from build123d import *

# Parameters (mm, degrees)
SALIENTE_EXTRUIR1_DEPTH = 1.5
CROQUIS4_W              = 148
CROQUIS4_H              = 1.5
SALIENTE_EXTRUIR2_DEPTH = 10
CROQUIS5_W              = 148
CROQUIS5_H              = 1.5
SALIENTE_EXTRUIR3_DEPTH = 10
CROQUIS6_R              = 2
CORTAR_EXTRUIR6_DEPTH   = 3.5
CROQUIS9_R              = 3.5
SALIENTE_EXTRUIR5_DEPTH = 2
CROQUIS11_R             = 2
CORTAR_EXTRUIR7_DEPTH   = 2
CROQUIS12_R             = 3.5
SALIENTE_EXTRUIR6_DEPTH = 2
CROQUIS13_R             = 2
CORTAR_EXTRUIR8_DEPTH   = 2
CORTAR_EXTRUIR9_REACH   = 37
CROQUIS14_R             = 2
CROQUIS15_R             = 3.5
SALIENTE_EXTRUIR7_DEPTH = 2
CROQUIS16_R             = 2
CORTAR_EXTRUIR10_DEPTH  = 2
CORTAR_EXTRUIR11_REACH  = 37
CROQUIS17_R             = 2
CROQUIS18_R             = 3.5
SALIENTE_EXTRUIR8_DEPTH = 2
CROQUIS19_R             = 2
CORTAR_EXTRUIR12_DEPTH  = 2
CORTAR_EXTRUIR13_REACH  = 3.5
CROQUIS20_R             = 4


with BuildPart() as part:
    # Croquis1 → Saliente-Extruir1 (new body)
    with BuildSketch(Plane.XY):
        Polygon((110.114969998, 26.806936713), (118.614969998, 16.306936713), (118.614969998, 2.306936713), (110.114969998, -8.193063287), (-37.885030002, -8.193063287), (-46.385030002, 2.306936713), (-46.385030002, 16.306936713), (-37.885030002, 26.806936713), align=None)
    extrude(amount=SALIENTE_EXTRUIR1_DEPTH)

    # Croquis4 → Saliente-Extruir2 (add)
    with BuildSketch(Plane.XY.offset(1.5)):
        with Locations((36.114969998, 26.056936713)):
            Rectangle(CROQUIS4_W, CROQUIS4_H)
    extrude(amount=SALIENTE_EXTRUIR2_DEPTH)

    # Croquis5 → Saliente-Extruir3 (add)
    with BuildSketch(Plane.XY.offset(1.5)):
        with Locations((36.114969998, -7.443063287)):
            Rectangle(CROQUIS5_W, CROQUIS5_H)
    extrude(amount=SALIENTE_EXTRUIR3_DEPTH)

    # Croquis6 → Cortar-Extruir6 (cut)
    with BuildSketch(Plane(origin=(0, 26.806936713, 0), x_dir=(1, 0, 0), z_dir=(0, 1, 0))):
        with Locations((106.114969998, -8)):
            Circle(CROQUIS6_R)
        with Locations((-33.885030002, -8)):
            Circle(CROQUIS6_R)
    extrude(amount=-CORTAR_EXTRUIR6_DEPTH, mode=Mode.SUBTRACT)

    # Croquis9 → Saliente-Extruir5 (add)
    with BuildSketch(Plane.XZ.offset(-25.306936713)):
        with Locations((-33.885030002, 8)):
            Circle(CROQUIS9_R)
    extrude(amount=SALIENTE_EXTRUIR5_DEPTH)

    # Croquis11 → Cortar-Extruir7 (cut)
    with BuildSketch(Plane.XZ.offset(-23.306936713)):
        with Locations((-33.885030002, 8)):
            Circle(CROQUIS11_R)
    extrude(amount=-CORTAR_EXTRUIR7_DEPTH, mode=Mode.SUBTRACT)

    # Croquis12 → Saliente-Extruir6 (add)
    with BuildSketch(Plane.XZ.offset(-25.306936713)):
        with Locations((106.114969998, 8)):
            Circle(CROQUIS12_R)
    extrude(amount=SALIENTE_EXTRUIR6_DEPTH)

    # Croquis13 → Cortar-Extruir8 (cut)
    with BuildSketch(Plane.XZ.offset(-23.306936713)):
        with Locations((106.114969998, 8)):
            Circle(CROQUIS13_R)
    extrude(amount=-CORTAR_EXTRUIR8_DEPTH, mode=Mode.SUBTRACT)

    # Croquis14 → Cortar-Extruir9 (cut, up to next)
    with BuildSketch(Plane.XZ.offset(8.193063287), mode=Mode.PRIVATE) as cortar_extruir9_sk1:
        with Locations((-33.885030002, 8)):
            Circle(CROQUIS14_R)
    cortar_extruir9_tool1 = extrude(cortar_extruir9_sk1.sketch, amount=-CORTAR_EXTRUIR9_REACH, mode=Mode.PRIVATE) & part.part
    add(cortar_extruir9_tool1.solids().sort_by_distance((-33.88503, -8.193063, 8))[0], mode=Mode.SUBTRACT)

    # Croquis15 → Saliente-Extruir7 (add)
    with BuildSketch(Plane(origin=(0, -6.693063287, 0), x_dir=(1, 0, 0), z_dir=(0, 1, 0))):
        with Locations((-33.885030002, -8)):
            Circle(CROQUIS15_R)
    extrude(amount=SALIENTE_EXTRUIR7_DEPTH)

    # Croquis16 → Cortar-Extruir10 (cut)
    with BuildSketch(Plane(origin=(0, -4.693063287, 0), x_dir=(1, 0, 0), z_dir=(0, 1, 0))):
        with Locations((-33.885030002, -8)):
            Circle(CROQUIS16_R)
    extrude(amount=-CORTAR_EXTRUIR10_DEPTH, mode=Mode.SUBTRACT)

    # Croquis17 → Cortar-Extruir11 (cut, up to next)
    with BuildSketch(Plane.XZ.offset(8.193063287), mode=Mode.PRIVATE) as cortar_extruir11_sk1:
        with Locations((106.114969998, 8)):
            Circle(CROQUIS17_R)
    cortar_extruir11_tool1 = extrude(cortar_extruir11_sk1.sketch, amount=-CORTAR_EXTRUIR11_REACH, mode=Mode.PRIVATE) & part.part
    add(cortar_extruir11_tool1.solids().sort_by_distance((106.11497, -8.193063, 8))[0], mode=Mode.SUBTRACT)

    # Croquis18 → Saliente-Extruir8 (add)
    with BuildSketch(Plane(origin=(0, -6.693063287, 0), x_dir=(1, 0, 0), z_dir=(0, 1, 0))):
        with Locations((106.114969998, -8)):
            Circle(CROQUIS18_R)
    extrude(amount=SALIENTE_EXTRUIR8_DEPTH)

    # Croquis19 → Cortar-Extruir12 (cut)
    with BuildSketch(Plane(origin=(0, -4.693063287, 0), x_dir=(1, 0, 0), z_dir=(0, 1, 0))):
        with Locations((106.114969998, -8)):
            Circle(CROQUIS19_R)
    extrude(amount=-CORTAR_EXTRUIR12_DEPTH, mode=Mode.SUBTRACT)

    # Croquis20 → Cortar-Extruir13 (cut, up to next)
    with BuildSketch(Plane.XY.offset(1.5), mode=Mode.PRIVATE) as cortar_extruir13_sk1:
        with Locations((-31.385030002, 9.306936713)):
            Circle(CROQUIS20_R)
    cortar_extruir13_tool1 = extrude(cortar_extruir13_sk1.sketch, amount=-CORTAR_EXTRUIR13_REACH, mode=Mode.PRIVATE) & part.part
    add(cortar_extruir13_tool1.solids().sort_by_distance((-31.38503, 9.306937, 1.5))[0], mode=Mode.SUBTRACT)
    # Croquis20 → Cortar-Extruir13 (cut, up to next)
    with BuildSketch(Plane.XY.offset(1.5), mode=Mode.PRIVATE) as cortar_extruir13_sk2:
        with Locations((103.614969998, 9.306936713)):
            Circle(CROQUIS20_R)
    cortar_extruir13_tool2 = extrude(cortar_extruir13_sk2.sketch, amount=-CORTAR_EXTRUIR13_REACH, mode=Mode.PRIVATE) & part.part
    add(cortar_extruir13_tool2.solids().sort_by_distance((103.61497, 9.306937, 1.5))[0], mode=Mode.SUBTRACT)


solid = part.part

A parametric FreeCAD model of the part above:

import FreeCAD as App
import Part
import Sketcher

doc = App.newDocument("Part")
body = doc.addObject("PartDesign::Body", "Body")

sketch1 = doc.addObject("Sketcher::SketchObject", "Sketch")
body.addObject(sketch1)
sketch1.AttachmentSupport = (doc.XY_Plane, [""])
sketch1.MapMode = "FlatFace"
sketch1.addGeometry(Part.LineSegment(App.Vector(119, 16, 0), App.Vector(110, 27, 0)), False)
sketch1.addGeometry(Part.LineSegment(App.Vector(110, 27, 0), App.Vector(-38, 27, 0)), False)
sketch1.addGeometry(Part.LineSegment(App.Vector(-38, 27, 0), App.Vector(-46, 16, 0)), False)
sketch1.addGeometry(Part.LineSegment(App.Vector(-46, 16, 0), App.Vector(-46, 2, 0)), False)
sketch1.addGeometry(Part.LineSegment(App.Vector(-46, 2, 0), App.Vector(-38, -8, 0)), False)
sketch1.addGeometry(Part.LineSegment(App.Vector(-38, -8, 0), App.Vector(110, -8, 0)), False)
sketch1.addGeometry(Part.LineSegment(App.Vector(110, -8, 0), App.Vector(119, 2, 0)), False)
sketch1.addGeometry(Part.LineSegment(App.Vector(119, 2, 0), App.Vector(119, 16, 0)), False)
sketch1.addConstraint(Sketcher.Constraint("Coincident", 0, 2, 1, 1))
sketch1.addConstraint(Sketcher.Constraint("Coincident", 1, 2, 2, 1))
sketch1.addConstraint(Sketcher.Constraint("Coincident", 2, 2, 3, 1))
sketch1.addConstraint(Sketcher.Constraint("Coincident", 3, 2, 4, 1))
sketch1.addConstraint(Sketcher.Constraint("Coincident", 4, 2, 5, 1))
sketch1.addConstraint(Sketcher.Constraint("Coincident", 5, 2, 6, 1))
sketch1.addConstraint(Sketcher.Constraint("Coincident", 6, 2, 7, 1))
sketch1.addConstraint(Sketcher.Constraint("Coincident", 7, 2, 0, 1))
sketch1.addConstraint(Sketcher.Constraint("Horizontal", 1))
sketch1.addConstraint(Sketcher.Constraint("Vertical", 3))
sketch1.addConstraint(Sketcher.Constraint("Horizontal", 5))
sketch1.addConstraint(Sketcher.Constraint("Vertical", 7))
sketch1.addConstraint(Sketcher.Constraint("Parallel", 0, 4))
sketch1.addConstraint(Sketcher.Constraint("Parallel", 2, 6))
sketch1.addConstraint(Sketcher.Constraint("Horizontal", 3, 2, 6, 2))
sketch1.addConstraint(Sketcher.Constraint("Horizontal", 2, 2, 7, 2))
sketch1.addConstraint(Sketcher.Constraint("Vertical", 1, 2, 4, 2))
sketch1.addConstraint(Sketcher.Constraint("Vertical", 0, 2, 5, 2))
sketch1.addConstraint(Sketcher.Constraint("DistanceX", 1, 2, 1, 1, 148.0))
sketch1.addConstraint(Sketcher.Constraint("DistanceY", 3, 2, 3, 1, 14.0))
sketch1.addConstraint(Sketcher.Constraint("DistanceY", 4, 2, 1, 2, 35.0))
sketch1.addConstraint(Sketcher.Constraint("DistanceX", 3, 2, 6, 2, 165.0))
sketch1.addConstraint(Sketcher.Constraint("DistanceX", -1, 1, 0, 2, 110.11497))
sketch1.addConstraint(Sketcher.Constraint("DistanceY", -1, 1, 0, 2, 26.806937))
pad1 = doc.addObject("PartDesign::Pad", "Pad")
body.addObject(pad1)
pad1.Profile = sketch1
pad1.Length = 1.5

sketch2 = doc.addObject("Sketcher::SketchObject", "Sketch001")
body.addObject(sketch2)
sketch2.AttachmentSupport = (doc.XY_Plane, [""])
sketch2.MapMode = "FlatFace"
sketch2.AttachmentOffset = App.Placement(App.Vector(0, 0, 1.5), App.Rotation())
sketch2.addGeometry(Part.LineSegment(App.Vector(-37.9, 26.8, 0), App.Vector(-37.9, 25.3, 0)), False)
sketch2.addGeometry(Part.LineSegment(App.Vector(-37.9, 25.3, 0), App.Vector(110.1, 25.3, 0)), False)
sketch2.addGeometry(Part.LineSegment(App.Vector(110.1, 25.3, 0), App.Vector(110.1, 26.8, 0)), False)
sketch2.addGeometry(Part.LineSegment(App.Vector(110.1, 26.8, 0), App.Vector(-37.9, 26.8, 0)), False)
sketch2.addConstraint(Sketcher.Constraint("Coincident", 0, 2, 1, 1))
sketch2.addConstraint(Sketcher.Constraint("Coincident", 1, 2, 2, 1))
sketch2.addConstraint(Sketcher.Constraint("Coincident", 2, 2, 3, 1))
sketch2.addConstraint(Sketcher.Constraint("Coincident", 3, 2, 0, 1))
sketch2.addConstraint(Sketcher.Constraint("Vertical", 0))
sketch2.addConstraint(Sketcher.Constraint("Horizontal", 1))
sketch2.addConstraint(Sketcher.Constraint("Vertical", 2))
sketch2.addConstraint(Sketcher.Constraint("Horizontal", 3))
sketch2.addConstraint(Sketcher.Constraint("DistanceX", 1, 1, 1, 2, 148.0))
sketch2.addConstraint(Sketcher.Constraint("DistanceY", 0, 2, 0, 1, 1.5))
sketch2.addConstraint(Sketcher.Constraint("DistanceX", 0, 2, -1, 1, 37.88503))
sketch2.addConstraint(Sketcher.Constraint("DistanceY", -1, 1, 0, 2, 25.306937))
pad2 = doc.addObject("PartDesign::Pad", "Pad001")
body.addObject(pad2)
pad2.Profile = sketch2
pad2.Length = 10

sketch3 = doc.addObject("Sketcher::SketchObject", "Sketch002")
body.addObject(sketch3)
sketch3.AttachmentSupport = (doc.XY_Plane, [""])
sketch3.MapMode = "FlatFace"
sketch3.AttachmentOffset = App.Placement(App.Vector(0, 0, 1.5), App.Rotation())
sketch3.addGeometry(Part.LineSegment(App.Vector(-37.9, -6.7, 0), App.Vector(-37.9, -8.2, 0)), False)
sketch3.addGeometry(Part.LineSegment(App.Vector(-37.9, -8.2, 0), App.Vector(110.1, -8.2, 0)), False)
sketch3.addGeometry(Part.LineSegment(App.Vector(110.1, -8.2, 0), App.Vector(110.1, -6.7, 0)), False)
sketch3.addGeometry(Part.LineSegment(App.Vector(110.1, -6.7, 0), App.Vector(-37.9, -6.7, 0)), False)
sketch3.addConstraint(Sketcher.Constraint("Coincident", 0, 2, 1, 1))
sketch3.addConstraint(Sketcher.Constraint("Coincident", 1, 2, 2, 1))
sketch3.addConstraint(Sketcher.Constraint("Coincident", 2, 2, 3, 1))
sketch3.addConstraint(Sketcher.Constraint("Coincident", 3, 2, 0, 1))
sketch3.addConstraint(Sketcher.Constraint("Vertical", 0))
sketch3.addConstraint(Sketcher.Constraint("Horizontal", 1))
sketch3.addConstraint(Sketcher.Constraint("Vertical", 2))
sketch3.addConstraint(Sketcher.Constraint("Horizontal", 3))
sketch3.addConstraint(Sketcher.Constraint("DistanceX", 1, 1, 1, 2, 148.0))
sketch3.addConstraint(Sketcher.Constraint("DistanceY", 0, 2, 0, 1, 1.5))
sketch3.addConstraint(Sketcher.Constraint("DistanceX", 0, 2, -1, 1, 37.88503))
sketch3.addConstraint(Sketcher.Constraint("DistanceY", 0, 2, -1, 1, 8.193063))
pad3 = doc.addObject("PartDesign::Pad", "Pad002")
body.addObject(pad3)
pad3.Profile = sketch3
pad3.Length = 10

sketch4 = doc.addObject("Sketcher::SketchObject", "Sketch003")
body.addObject(sketch4)
sketch4.AttachmentSupport = (doc.XZ_Plane, [""])
sketch4.MapMode = "FlatFace"
sketch4.AttachmentOffset = App.Placement(App.Vector(0, 0, -26.806937), App.Rotation())
sketch4.addGeometry(Part.Circle(App.Vector(106.1, 8, 0), App.Vector(0, 0, 1), 2), False)
sketch4.addGeometry(Part.Circle(App.Vector(-33.9, 8, 0), App.Vector(0, 0, 1), 2), False)
sketch4.addConstraint(Sketcher.Constraint("Equal", 0, 1))
sketch4.addConstraint(Sketcher.Constraint("Horizontal", 0, 3, 1, 3))
sketch4.addConstraint(Sketcher.Constraint("Diameter", 0, 4.0))
sketch4.addConstraint(Sketcher.Constraint("DistanceY", -1, 1, 0, 3, 8.0))
sketch4.addConstraint(Sketcher.Constraint("DistanceX", 1, 3, 0, 3, 140.0))
sketch4.addConstraint(Sketcher.Constraint("DistanceX", -1, 1, 0, 3, 106.11497))
pocket1 = doc.addObject("PartDesign::Pocket", "Pocket")
body.addObject(pocket1)
pocket1.Profile = sketch4
pocket1.Length = 3.5
pocket1.Reversed = True

sketch5 = doc.addObject("Sketcher::SketchObject", "Sketch004")
body.addObject(sketch5)
sketch5.AttachmentSupport = (doc.XZ_Plane, [""])
sketch5.MapMode = "FlatFace"
sketch5.AttachmentOffset = App.Placement(App.Vector(0, 0, -25.306937), App.Rotation())
sketch5.addGeometry(Part.Circle(App.Vector(-33.9, 8, 0), App.Vector(0, 0, 1), 3.5), False)
sketch5.addConstraint(Sketcher.Constraint("Diameter", 0, 7.0))
sketch5.addConstraint(Sketcher.Constraint("DistanceY", -1, 1, 0, 3, 8.0))
sketch5.addConstraint(Sketcher.Constraint("DistanceX", 0, 3, -1, 1, 33.88503))
pad4 = doc.addObject("PartDesign::Pad", "Pad003")
body.addObject(pad4)
pad4.Profile = sketch5
pad4.Length = 2

sketch6 = doc.addObject("Sketcher::SketchObject", "Sketch005")
body.addObject(sketch6)
sketch6.AttachmentSupport = (doc.XZ_Plane, [""])
sketch6.MapMode = "FlatFace"
sketch6.AttachmentOffset = App.Placement(App.Vector(0, 0, -23.306937), App.Rotation())
sketch6.addGeometry(Part.Circle(App.Vector(-33.9, 8, 0), App.Vector(0, 0, 1), 2), False)
sketch6.addConstraint(Sketcher.Constraint("Diameter", 0, 4.0))
sketch6.addConstraint(Sketcher.Constraint("DistanceY", -1, 1, 0, 3, 8.0))
sketch6.addConstraint(Sketcher.Constraint("DistanceX", 0, 3, -1, 1, 33.88503))
pocket2 = doc.addObject("PartDesign::Pocket", "Pocket001")
body.addObject(pocket2)
pocket2.Profile = sketch6
pocket2.Length = 2

sketch7 = doc.addObject("Sketcher::SketchObject", "Sketch006")
body.addObject(sketch7)
sketch7.AttachmentSupport = (doc.XZ_Plane, [""])
sketch7.MapMode = "FlatFace"
sketch7.AttachmentOffset = App.Placement(App.Vector(0, 0, -25.306937), App.Rotation())
sketch7.addGeometry(Part.Circle(App.Vector(106.1, 8, 0), App.Vector(0, 0, 1), 3.5), False)
sketch7.addConstraint(Sketcher.Constraint("Diameter", 0, 7.0))
sketch7.addConstraint(Sketcher.Constraint("DistanceY", -1, 1, 0, 3, 8.0))
sketch7.addConstraint(Sketcher.Constraint("DistanceX", -1, 1, 0, 3, 106.11497))
pad5 = doc.addObject("PartDesign::Pad", "Pad004")
body.addObject(pad5)
pad5.Profile = sketch7
pad5.Length = 2

sketch8 = doc.addObject("Sketcher::SketchObject", "Sketch007")
body.addObject(sketch8)
sketch8.AttachmentSupport = (doc.XZ_Plane, [""])
sketch8.MapMode = "FlatFace"
sketch8.AttachmentOffset = App.Placement(App.Vector(0, 0, -23.306937), App.Rotation())
sketch8.addGeometry(Part.Circle(App.Vector(106.1, 8, 0), App.Vector(0, 0, 1), 2), False)
sketch8.addConstraint(Sketcher.Constraint("Diameter", 0, 4.0))
sketch8.addConstraint(Sketcher.Constraint("DistanceY", -1, 1, 0, 3, 8.0))
sketch8.addConstraint(Sketcher.Constraint("DistanceX", -1, 1, 0, 3, 106.11497))
pocket3 = doc.addObject("PartDesign::Pocket", "Pocket002")
body.addObject(pocket3)
pocket3.Profile = sketch8
pocket3.Length = 2

sketch9 = doc.addObject("Sketcher::SketchObject", "Sketch008")
body.addObject(sketch9)
sketch9.AttachmentSupport = (doc.XZ_Plane, [""])
sketch9.MapMode = "FlatFace"
sketch9.AttachmentOffset = App.Placement(App.Vector(0, 0, 8.193063), App.Rotation())
sketch9.addGeometry(Part.Circle(App.Vector(-33.9, 8, 0), App.Vector(0, 0, 1), 2), False)
sketch9.addConstraint(Sketcher.Constraint("Diameter", 0, 4.0))
sketch9.addConstraint(Sketcher.Constraint("DistanceY", -1, 1, 0, 3, 8.0))
sketch9.addConstraint(Sketcher.Constraint("DistanceX", 0, 3, -1, 1, 33.88503))
pocket4 = doc.addObject("PartDesign::Pocket", "Pocket003")
body.addObject(pocket4)
pocket4.Profile = sketch9
pocket4.Type = "UpToFirst"

sketch10 = doc.addObject("Sketcher::SketchObject", "Sketch009")
body.addObject(sketch10)
sketch10.AttachmentSupport = (doc.XZ_Plane, [""])
sketch10.MapMode = "FlatFace"
sketch10.AttachmentOffset = App.Placement(App.Vector(0, 0, 6.693063), App.Rotation())
sketch10.addGeometry(Part.Circle(App.Vector(-33.9, 8, 0), App.Vector(0, 0, 1), 3.5), False)
sketch10.addConstraint(Sketcher.Constraint("Diameter", 0, 7.0))
sketch10.addConstraint(Sketcher.Constraint("DistanceY", -1, 1, 0, 3, 8.0))
sketch10.addConstraint(Sketcher.Constraint("DistanceX", 0, 3, -1, 1, 33.88503))
pad6 = doc.addObject("PartDesign::Pad", "Pad005")
body.addObject(pad6)
pad6.Profile = sketch10
pad6.Length = 2
pad6.Reversed = True

sketch11 = doc.addObject("Sketcher::SketchObject", "Sketch010")
body.addObject(sketch11)
sketch11.AttachmentSupport = (doc.XZ_Plane, [""])
sketch11.MapMode = "FlatFace"
sketch11.AttachmentOffset = App.Placement(App.Vector(0, 0, 4.693063), App.Rotation())
sketch11.addGeometry(Part.Circle(App.Vector(-33.9, 8, 0), App.Vector(0, 0, 1), 2), False)
sketch11.addConstraint(Sketcher.Constraint("Diameter", 0, 4.0))
sketch11.addConstraint(Sketcher.Constraint("DistanceY", -1, 1, 0, 3, 8.0))
sketch11.addConstraint(Sketcher.Constraint("DistanceX", 0, 3, -1, 1, 33.88503))
pocket5 = doc.addObject("PartDesign::Pocket", "Pocket004")
body.addObject(pocket5)
pocket5.Profile = sketch11
pocket5.Length = 2
pocket5.Reversed = True

sketch12 = doc.addObject("Sketcher::SketchObject", "Sketch011")
body.addObject(sketch12)
sketch12.AttachmentSupport = (doc.XZ_Plane, [""])
sketch12.MapMode = "FlatFace"
sketch12.AttachmentOffset = App.Placement(App.Vector(0, 0, 8.193063), App.Rotation())
sketch12.addGeometry(Part.Circle(App.Vector(106.1, 8, 0), App.Vector(0, 0, 1), 2), False)
sketch12.addConstraint(Sketcher.Constraint("Diameter", 0, 4.0))
sketch12.addConstraint(Sketcher.Constraint("DistanceY", -1, 1, 0, 3, 8.0))
sketch12.addConstraint(Sketcher.Constraint("DistanceX", -1, 1, 0, 3, 106.11497))
pocket6 = doc.addObject("PartDesign::Pocket", "Pocket005")
body.addObject(pocket6)
pocket6.Profile = sketch12
pocket6.Type = "UpToFirst"

sketch13 = doc.addObject("Sketcher::SketchObject", "Sketch012")
body.addObject(sketch13)
sketch13.AttachmentSupport = (doc.XZ_Plane, [""])
sketch13.MapMode = "FlatFace"
sketch13.AttachmentOffset = App.Placement(App.Vector(0, 0, 6.693063), App.Rotation())
sketch13.addGeometry(Part.Circle(App.Vector(106.1, 8, 0), App.Vector(0, 0, 1), 3.5), False)
sketch13.addConstraint(Sketcher.Constraint("Diameter", 0, 7.0))
sketch13.addConstraint(Sketcher.Constraint("DistanceY", -1, 1, 0, 3, 8.0))
sketch13.addConstraint(Sketcher.Constraint("DistanceX", -1, 1, 0, 3, 106.11497))
pad7 = doc.addObject("PartDesign::Pad", "Pad006")
body.addObject(pad7)
pad7.Profile = sketch13
pad7.Length = 2
pad7.Reversed = True

sketch14 = doc.addObject("Sketcher::SketchObject", "Sketch013")
body.addObject(sketch14)
sketch14.AttachmentSupport = (doc.XZ_Plane, [""])
sketch14.MapMode = "FlatFace"
sketch14.AttachmentOffset = App.Placement(App.Vector(0, 0, 4.693063), App.Rotation())
sketch14.addGeometry(Part.Circle(App.Vector(106.1, 8, 0), App.Vector(0, 0, 1), 2), False)
sketch14.addConstraint(Sketcher.Constraint("Diameter", 0, 4.0))
sketch14.addConstraint(Sketcher.Constraint("DistanceY", -1, 1, 0, 3, 8.0))
sketch14.addConstraint(Sketcher.Constraint("DistanceX", -1, 1, 0, 3, 106.11497))
pocket7 = doc.addObject("PartDesign::Pocket", "Pocket006")
body.addObject(pocket7)
pocket7.Profile = sketch14
pocket7.Length = 2
pocket7.Reversed = True

sketch15 = doc.addObject("Sketcher::SketchObject", "Sketch014")
body.addObject(sketch15)
sketch15.AttachmentSupport = (doc.XY_Plane, [""])
sketch15.MapMode = "FlatFace"
sketch15.AttachmentOffset = App.Placement(App.Vector(0, 0, 1.5), App.Rotation())
sketch15.addGeometry(Part.Circle(App.Vector(-31.4, 9.3, 0), App.Vector(0, 0, 1), 4), False)
sketch15.addConstraint(Sketcher.Constraint("Diameter", 0, 8.0))
sketch15.addConstraint(Sketcher.Constraint("DistanceX", 0, 3, -1, 1, 31.38503))
sketch15.addConstraint(Sketcher.Constraint("DistanceY", -1, 1, 0, 3, 9.306937))
pocket8 = doc.addObject("PartDesign::Pocket", "Pocket007")
body.addObject(pocket8)
pocket8.Profile = sketch15
pocket8.Type = "UpToFirst"

sketch16 = doc.addObject("Sketcher::SketchObject", "Sketch015")
body.addObject(sketch16)
sketch16.AttachmentSupport = (doc.XY_Plane, [""])
sketch16.MapMode = "FlatFace"
sketch16.AttachmentOffset = App.Placement(App.Vector(0, 0, 1.5), App.Rotation())
sketch16.addGeometry(Part.Circle(App.Vector(103.6, 9.3, 0), App.Vector(0, 0, 1), 4), False)
sketch16.addConstraint(Sketcher.Constraint("Diameter", 0, 8.0))
sketch16.addConstraint(Sketcher.Constraint("DistanceX", -1, 1, 0, 3, 103.61497))
sketch16.addConstraint(Sketcher.Constraint("DistanceY", -1, 1, 0, 3, 9.306937))
pocket9 = doc.addObject("PartDesign::Pocket", "Pocket008")
body.addObject(pocket9)
pocket9.Profile = sketch16
pocket9.Type = "UpToFirst"

doc.recompute()
